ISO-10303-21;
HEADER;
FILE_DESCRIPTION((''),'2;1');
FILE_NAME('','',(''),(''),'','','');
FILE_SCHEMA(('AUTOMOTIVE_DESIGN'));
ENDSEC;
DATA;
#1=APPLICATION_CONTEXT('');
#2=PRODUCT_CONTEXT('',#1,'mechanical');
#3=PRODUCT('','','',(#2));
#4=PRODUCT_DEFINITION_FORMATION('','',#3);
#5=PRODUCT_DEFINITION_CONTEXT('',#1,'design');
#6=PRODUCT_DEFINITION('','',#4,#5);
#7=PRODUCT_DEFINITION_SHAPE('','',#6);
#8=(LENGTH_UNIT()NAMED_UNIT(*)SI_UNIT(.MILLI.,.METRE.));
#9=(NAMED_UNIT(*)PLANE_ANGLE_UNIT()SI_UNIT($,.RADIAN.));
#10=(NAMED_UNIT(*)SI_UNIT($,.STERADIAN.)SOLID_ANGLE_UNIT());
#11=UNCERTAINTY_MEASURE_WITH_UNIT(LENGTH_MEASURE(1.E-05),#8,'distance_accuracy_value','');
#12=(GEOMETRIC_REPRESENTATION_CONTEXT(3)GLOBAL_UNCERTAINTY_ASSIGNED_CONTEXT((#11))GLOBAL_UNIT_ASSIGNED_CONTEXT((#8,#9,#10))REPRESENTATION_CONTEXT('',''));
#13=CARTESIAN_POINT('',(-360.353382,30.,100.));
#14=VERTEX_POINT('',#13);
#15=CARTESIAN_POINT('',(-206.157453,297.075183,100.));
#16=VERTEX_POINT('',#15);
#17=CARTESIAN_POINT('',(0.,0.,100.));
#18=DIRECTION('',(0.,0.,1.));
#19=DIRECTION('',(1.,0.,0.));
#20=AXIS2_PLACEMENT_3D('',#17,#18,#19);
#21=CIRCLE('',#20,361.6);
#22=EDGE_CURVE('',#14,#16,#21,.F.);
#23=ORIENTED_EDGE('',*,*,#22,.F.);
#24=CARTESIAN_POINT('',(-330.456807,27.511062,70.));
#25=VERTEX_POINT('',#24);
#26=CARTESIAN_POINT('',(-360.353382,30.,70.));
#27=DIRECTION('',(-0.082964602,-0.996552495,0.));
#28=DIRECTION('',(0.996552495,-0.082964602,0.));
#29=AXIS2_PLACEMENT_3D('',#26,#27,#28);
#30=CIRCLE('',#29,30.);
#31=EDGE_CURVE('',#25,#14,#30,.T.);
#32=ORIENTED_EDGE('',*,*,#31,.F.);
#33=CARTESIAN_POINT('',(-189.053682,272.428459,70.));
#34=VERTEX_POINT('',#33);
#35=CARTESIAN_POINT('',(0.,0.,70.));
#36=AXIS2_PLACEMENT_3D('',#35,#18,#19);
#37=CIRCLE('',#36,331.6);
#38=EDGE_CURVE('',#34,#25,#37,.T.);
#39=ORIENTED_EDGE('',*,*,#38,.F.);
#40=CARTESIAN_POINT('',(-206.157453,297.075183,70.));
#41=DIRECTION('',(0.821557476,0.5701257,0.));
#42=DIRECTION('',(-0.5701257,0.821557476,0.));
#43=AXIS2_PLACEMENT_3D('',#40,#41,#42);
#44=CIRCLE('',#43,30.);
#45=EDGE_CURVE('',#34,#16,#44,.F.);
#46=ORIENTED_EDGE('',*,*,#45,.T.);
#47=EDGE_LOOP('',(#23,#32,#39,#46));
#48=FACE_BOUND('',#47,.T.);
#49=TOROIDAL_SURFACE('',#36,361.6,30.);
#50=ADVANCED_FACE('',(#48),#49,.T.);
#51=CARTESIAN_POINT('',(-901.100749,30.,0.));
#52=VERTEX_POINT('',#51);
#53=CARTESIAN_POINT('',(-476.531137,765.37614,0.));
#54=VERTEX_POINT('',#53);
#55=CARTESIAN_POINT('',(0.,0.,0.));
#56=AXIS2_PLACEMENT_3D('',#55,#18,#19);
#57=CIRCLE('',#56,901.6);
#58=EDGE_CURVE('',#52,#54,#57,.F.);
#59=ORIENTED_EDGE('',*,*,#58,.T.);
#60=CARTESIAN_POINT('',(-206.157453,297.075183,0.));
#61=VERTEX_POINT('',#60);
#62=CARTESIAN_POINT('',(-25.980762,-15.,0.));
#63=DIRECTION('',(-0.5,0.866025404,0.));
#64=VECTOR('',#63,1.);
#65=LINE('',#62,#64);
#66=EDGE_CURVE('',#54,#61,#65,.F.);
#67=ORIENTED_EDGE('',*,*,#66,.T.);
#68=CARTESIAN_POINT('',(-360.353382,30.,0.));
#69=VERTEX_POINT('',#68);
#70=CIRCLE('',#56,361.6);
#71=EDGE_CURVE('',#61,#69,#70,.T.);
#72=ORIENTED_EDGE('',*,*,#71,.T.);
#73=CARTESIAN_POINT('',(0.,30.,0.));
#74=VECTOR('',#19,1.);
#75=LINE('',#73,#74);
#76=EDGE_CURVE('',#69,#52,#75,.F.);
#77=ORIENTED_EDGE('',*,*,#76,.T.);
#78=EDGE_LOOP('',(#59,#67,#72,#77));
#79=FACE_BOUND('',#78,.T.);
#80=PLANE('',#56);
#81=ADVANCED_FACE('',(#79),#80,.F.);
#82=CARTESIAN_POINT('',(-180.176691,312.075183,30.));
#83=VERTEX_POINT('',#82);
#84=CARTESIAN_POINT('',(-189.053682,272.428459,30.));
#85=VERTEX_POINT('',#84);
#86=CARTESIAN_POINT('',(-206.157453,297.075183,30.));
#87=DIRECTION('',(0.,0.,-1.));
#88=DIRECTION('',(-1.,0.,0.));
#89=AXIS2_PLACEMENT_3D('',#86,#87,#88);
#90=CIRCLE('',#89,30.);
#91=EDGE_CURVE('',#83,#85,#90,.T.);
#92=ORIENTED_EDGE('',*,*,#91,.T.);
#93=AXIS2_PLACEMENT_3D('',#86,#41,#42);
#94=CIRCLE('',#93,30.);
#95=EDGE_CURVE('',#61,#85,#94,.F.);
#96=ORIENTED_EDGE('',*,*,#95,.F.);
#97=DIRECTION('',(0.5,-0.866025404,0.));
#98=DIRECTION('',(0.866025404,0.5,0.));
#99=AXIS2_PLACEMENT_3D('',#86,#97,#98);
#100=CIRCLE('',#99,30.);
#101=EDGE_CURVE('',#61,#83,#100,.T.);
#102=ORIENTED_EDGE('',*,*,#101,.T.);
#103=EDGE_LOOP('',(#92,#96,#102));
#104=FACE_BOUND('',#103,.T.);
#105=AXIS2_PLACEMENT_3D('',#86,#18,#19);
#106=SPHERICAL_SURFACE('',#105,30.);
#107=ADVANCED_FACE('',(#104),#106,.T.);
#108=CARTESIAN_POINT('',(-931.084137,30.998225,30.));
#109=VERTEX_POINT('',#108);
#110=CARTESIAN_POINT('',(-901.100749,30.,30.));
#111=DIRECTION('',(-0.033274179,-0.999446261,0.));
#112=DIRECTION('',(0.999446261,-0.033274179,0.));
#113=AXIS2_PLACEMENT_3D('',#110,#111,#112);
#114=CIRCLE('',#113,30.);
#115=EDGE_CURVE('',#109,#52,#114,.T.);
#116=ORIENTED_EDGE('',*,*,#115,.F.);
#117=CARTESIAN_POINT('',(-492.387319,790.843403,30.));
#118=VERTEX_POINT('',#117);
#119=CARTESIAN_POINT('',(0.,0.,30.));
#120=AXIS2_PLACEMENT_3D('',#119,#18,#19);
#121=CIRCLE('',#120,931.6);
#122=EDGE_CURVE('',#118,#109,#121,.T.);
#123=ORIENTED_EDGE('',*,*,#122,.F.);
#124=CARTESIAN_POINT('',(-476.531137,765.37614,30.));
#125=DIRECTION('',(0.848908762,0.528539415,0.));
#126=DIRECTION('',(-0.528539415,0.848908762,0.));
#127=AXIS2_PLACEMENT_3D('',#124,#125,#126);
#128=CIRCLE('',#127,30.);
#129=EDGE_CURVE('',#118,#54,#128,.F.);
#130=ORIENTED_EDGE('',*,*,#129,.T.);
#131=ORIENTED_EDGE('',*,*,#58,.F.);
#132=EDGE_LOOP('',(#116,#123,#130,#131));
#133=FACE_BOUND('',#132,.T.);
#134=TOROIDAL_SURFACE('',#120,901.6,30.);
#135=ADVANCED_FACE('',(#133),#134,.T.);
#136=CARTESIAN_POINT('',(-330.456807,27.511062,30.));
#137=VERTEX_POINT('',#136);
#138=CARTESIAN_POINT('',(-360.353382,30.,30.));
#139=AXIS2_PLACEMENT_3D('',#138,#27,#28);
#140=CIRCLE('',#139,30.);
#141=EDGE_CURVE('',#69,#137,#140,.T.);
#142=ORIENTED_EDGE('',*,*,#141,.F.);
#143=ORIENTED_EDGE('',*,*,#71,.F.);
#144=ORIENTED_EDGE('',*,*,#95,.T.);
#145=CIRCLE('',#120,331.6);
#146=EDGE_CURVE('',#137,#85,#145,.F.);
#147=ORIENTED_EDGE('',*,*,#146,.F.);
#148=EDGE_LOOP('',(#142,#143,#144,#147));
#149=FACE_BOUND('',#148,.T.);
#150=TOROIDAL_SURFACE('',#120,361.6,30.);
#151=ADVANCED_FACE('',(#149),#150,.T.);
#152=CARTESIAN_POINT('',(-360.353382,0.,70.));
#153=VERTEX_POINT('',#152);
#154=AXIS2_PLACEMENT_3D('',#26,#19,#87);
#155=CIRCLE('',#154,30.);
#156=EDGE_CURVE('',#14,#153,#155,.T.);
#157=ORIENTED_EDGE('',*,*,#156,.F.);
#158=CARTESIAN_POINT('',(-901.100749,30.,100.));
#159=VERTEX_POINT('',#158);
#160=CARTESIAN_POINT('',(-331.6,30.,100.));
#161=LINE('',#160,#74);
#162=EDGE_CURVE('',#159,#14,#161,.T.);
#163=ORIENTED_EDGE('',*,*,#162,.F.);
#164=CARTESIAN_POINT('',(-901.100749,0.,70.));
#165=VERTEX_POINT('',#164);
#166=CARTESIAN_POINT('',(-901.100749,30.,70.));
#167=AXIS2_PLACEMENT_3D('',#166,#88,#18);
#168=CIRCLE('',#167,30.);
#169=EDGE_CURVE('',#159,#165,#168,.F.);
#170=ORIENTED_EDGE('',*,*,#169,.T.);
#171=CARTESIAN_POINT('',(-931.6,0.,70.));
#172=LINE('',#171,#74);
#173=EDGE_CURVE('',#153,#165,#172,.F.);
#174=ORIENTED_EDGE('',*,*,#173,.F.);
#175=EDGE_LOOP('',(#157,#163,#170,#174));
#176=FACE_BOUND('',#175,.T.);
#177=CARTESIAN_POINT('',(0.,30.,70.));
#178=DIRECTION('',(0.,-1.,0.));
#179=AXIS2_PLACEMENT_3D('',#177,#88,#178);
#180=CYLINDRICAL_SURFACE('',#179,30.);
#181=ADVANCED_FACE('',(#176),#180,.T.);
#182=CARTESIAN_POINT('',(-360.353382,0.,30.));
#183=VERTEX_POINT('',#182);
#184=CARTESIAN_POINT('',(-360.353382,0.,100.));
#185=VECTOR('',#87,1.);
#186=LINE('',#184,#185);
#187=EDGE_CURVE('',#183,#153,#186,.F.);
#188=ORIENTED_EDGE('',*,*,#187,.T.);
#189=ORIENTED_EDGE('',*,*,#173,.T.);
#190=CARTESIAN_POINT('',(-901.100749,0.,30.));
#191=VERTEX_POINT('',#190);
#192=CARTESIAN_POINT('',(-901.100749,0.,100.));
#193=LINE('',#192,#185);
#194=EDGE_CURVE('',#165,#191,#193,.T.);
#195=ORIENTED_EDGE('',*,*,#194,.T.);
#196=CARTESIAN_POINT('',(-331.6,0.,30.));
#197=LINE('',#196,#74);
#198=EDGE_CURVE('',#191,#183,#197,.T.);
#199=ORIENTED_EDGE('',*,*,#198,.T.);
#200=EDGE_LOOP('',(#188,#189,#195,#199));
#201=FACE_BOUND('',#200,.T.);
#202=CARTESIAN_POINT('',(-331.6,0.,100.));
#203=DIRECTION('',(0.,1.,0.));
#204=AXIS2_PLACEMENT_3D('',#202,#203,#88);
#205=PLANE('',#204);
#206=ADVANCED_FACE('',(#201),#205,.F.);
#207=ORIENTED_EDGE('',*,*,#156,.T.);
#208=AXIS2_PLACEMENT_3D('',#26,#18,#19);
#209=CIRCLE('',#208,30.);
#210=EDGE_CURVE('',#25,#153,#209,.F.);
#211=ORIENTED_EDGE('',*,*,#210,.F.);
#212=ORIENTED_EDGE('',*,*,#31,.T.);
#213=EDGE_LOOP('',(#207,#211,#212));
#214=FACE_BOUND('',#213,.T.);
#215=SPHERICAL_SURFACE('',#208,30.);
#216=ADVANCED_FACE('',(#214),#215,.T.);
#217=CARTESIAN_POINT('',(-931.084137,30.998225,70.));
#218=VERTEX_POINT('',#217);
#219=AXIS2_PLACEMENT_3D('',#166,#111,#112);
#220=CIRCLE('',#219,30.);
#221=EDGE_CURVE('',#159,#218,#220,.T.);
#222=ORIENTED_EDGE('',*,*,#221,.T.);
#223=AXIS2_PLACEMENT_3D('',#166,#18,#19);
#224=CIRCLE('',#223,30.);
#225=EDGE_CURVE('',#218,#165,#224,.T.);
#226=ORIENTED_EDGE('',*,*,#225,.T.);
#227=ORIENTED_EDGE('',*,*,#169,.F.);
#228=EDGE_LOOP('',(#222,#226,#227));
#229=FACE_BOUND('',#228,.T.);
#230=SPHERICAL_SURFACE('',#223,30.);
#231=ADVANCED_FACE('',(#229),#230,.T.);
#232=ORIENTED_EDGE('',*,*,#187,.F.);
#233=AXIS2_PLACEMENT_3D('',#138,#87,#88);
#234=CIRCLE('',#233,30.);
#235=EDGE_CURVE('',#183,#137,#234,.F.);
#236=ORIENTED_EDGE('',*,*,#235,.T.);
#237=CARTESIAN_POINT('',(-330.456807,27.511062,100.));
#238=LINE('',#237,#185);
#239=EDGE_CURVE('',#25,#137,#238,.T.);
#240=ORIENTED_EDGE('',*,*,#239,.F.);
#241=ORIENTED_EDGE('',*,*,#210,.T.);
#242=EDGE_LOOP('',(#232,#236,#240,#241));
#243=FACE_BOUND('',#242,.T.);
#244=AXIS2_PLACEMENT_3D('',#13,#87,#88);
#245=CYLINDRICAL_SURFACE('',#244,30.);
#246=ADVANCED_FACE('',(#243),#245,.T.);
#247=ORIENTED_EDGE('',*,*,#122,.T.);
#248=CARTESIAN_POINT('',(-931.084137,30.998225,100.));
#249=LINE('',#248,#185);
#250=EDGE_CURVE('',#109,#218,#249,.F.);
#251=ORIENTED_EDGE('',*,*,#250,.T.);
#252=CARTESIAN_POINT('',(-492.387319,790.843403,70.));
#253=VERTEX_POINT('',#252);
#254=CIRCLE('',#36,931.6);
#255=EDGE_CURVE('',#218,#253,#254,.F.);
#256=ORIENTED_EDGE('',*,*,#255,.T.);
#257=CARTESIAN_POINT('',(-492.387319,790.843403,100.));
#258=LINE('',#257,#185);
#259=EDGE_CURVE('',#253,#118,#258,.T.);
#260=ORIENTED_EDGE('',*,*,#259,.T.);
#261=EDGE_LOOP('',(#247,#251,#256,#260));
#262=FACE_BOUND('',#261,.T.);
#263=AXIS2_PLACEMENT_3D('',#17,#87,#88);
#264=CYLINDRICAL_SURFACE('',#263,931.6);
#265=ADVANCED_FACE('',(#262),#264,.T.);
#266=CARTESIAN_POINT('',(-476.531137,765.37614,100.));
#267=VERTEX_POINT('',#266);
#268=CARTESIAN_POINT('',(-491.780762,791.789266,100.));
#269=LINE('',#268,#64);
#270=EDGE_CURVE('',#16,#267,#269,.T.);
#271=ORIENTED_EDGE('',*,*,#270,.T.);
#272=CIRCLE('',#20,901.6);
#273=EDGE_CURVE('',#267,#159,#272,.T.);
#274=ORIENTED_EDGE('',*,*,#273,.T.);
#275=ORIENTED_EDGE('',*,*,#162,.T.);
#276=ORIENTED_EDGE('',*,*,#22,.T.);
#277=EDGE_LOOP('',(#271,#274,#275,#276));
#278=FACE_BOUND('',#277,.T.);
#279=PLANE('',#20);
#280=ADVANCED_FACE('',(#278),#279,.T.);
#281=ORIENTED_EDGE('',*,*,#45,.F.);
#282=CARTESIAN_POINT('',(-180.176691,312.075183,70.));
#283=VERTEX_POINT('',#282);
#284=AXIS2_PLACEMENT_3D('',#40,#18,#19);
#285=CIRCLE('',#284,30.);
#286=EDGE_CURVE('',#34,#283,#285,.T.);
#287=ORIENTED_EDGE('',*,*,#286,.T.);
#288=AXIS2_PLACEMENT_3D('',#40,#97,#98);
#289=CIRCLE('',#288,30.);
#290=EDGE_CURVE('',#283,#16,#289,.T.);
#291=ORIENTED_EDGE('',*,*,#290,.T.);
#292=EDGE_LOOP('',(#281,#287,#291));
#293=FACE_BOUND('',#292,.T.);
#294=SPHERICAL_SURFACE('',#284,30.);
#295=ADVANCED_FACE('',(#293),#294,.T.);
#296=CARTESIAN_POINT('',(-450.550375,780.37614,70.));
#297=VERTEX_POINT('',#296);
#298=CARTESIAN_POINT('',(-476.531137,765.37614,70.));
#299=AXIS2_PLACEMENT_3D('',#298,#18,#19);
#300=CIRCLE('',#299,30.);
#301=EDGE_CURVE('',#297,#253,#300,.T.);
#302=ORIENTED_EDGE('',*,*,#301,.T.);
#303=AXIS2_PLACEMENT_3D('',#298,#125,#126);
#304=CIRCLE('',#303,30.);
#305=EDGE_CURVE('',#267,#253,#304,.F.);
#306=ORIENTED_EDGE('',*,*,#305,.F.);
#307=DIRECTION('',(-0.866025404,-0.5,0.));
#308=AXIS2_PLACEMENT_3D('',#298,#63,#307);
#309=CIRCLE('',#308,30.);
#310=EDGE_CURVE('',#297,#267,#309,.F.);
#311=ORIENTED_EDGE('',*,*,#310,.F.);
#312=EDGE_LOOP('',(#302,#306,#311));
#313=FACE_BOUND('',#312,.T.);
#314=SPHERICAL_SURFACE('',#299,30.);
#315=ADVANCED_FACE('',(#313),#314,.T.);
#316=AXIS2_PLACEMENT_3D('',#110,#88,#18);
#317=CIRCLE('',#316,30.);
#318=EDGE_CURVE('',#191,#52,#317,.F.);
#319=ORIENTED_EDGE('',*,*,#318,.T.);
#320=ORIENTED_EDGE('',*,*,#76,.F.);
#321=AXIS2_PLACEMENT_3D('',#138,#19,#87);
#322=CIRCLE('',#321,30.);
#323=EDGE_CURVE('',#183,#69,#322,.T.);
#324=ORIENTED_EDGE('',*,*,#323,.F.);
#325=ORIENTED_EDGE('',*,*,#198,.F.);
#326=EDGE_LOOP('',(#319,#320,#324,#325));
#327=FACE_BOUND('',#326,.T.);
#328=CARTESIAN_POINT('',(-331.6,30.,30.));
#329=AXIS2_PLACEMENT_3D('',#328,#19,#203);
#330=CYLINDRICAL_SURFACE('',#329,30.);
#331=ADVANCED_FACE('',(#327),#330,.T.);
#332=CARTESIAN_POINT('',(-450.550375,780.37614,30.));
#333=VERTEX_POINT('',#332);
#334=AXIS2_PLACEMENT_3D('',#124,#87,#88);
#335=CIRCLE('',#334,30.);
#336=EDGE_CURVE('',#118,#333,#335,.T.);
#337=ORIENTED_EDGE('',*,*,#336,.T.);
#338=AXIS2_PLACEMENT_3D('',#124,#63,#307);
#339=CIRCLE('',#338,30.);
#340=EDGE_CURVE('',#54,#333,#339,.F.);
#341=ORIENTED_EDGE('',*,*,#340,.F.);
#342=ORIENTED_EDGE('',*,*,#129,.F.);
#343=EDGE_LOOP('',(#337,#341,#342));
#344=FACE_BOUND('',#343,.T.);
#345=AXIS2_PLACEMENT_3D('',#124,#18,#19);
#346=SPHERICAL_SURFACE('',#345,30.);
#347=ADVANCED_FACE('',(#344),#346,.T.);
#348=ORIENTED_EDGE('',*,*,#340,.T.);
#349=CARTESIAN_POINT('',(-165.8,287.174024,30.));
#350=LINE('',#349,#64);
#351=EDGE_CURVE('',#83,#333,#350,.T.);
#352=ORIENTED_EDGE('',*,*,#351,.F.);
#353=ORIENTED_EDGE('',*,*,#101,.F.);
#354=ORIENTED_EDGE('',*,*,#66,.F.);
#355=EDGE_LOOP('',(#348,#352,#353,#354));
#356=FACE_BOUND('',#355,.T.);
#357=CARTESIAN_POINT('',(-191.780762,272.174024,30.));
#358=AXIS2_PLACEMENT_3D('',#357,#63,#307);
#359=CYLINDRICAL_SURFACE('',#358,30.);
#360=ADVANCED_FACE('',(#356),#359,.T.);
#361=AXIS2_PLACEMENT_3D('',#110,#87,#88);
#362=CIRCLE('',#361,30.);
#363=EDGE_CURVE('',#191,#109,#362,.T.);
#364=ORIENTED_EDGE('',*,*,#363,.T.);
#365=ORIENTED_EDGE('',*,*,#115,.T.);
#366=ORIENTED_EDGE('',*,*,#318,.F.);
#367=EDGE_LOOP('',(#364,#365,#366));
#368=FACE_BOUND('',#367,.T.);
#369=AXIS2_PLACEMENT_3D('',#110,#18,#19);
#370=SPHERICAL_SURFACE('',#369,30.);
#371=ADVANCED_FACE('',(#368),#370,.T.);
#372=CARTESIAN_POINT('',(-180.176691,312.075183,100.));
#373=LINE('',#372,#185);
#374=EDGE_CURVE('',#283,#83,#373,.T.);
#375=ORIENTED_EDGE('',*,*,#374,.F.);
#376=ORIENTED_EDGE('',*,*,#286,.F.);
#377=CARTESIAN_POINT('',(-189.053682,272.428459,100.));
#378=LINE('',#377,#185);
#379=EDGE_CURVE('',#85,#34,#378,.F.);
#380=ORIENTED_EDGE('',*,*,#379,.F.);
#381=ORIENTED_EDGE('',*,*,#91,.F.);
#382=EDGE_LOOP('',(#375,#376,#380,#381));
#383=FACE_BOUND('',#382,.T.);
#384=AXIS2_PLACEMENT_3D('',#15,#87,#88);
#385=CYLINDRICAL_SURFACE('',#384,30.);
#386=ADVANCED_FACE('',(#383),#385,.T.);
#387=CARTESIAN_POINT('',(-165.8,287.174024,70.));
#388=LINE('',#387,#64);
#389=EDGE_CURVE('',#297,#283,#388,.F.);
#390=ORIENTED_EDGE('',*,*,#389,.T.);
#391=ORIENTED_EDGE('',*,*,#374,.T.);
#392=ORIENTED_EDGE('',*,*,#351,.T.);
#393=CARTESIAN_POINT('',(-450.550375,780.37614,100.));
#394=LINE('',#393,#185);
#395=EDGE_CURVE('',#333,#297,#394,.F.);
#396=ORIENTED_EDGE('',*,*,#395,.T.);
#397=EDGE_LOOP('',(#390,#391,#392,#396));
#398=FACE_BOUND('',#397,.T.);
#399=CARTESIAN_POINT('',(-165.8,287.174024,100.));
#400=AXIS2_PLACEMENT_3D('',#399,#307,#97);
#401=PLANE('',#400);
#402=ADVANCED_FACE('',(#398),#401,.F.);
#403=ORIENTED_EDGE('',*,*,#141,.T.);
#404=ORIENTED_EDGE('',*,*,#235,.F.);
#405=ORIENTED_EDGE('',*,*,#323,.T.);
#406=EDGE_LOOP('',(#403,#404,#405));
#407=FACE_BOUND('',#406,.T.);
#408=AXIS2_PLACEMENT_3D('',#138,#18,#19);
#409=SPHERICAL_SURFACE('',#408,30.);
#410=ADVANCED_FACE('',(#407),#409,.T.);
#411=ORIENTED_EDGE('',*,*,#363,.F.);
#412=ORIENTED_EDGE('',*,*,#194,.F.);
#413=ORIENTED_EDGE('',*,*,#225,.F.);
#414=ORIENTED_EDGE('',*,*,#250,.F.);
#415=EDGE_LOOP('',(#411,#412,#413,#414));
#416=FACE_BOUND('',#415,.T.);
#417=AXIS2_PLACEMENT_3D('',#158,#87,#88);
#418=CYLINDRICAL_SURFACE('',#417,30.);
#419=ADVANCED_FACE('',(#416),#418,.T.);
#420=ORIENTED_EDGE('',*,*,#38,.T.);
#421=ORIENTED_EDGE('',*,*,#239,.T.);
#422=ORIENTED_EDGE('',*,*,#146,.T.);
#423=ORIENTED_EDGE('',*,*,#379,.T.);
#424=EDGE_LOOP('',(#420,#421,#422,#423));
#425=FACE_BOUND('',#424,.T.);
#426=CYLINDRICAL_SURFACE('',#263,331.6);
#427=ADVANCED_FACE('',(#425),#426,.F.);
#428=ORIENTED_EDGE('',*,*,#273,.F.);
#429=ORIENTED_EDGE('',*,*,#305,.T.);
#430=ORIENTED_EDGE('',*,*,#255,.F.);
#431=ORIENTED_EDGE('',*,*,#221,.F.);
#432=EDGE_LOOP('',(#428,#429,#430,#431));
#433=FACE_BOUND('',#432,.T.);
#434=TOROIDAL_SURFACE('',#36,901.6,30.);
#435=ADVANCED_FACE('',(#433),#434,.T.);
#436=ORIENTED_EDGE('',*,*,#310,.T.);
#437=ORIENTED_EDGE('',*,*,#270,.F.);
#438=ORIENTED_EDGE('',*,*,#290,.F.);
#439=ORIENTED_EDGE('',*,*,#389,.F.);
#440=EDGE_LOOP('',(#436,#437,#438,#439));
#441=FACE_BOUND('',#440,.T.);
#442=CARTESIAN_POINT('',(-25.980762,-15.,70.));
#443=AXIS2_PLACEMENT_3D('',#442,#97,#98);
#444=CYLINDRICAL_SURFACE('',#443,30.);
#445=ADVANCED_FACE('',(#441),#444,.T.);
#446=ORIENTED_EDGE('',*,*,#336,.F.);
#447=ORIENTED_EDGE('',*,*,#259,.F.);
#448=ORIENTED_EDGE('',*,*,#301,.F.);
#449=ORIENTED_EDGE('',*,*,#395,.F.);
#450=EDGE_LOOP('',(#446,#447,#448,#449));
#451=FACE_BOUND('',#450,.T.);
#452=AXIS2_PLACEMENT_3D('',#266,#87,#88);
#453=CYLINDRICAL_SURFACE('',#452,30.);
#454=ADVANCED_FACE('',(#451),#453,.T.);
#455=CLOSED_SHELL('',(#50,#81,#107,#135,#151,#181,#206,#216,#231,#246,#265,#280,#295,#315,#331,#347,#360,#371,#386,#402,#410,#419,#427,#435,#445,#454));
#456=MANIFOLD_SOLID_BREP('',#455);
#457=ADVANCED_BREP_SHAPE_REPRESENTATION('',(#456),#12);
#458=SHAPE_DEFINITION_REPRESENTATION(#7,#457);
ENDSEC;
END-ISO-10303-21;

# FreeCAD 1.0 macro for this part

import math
import FreeCAD as App
import Part
import Sketcher

V = App.Vector
Q = App.Units.Quantity

doc = App.newDocument("Part")
body = doc.addObject("PartDesign::Body", "Body")

# Sketch on XY plane
sketch1 = body.newObject("Sketcher::SketchObject", "Sketch")
sketch1.AttachmentSupport = (doc.getObject("XY_Plane"), [""])
sketch1.MapMode = "FlatFace"
sketch1.addGeometry(Part.LineSegment(V(-932, 0, 0), V(-332, 0, 0)), False)
sketch1.addGeometry(Part.ArcOfCircle(Part.Circle(V(0, 0, 0), V(0, 0, 1), 332), math.radians(120), math.radians(180)), False)
sketch1.addGeometry(Part.LineSegment(V(-166, 287, 0), V(-466, 807, 0)), False)
sketch1.addGeometry(Part.ArcOfCircle(Part.Circle(V(0, 0, 0), V(0, 0, 1), 932), math.radians(120), math.radians(180)), False)
sketch1.addConstraint(Sketcher.Constraint("Coincident", 0, 2, 1, 2))
sketch1.addConstraint(Sketcher.Constraint("Coincident", 1, 1, 2, 1))
sketch1.addConstraint(Sketcher.Constraint("Coincident", 2, 2, 3, 1))
sketch1.addConstraint(Sketcher.Constraint("Coincident", 3, 2, 0, 1))
sketch1.addConstraint(Sketcher.Constraint("Horizontal", 0))
sketch1.addConstraint(Sketcher.Constraint("Coincident", 1, 3, -1, 1))
sketch1.addConstraint(Sketcher.Constraint("Coincident", 3, 3, -1, 1))
sketch1.addConstraint(Sketcher.Constraint("PointOnObject", 0, 2, -1))
sketch1.addConstraint(Sketcher.Constraint("Radius", 1, 331.6))
sketch1.addConstraint(Sketcher.Constraint("Radius", 3, 931.6))
sketch1.addConstraint(Sketcher.Constraint("Angle", 2, Q("120 deg")))
sketch1.addConstraint(Sketcher.Constraint("DistanceX", 1, 1, -1, 1, 165.8))
pad1 = body.newObject("PartDesign::Pad", "Pad")
pad1.Profile = sketch1
pad1.Length = 100
doc.recompute()

fillet = body.newObject("PartDesign::Fillet", "Fillet")
fillet.Base = (pad1, ["Edge1"])
fillet.UseAllEdges = True
fillet.Radius = 30

doc.recompute()
